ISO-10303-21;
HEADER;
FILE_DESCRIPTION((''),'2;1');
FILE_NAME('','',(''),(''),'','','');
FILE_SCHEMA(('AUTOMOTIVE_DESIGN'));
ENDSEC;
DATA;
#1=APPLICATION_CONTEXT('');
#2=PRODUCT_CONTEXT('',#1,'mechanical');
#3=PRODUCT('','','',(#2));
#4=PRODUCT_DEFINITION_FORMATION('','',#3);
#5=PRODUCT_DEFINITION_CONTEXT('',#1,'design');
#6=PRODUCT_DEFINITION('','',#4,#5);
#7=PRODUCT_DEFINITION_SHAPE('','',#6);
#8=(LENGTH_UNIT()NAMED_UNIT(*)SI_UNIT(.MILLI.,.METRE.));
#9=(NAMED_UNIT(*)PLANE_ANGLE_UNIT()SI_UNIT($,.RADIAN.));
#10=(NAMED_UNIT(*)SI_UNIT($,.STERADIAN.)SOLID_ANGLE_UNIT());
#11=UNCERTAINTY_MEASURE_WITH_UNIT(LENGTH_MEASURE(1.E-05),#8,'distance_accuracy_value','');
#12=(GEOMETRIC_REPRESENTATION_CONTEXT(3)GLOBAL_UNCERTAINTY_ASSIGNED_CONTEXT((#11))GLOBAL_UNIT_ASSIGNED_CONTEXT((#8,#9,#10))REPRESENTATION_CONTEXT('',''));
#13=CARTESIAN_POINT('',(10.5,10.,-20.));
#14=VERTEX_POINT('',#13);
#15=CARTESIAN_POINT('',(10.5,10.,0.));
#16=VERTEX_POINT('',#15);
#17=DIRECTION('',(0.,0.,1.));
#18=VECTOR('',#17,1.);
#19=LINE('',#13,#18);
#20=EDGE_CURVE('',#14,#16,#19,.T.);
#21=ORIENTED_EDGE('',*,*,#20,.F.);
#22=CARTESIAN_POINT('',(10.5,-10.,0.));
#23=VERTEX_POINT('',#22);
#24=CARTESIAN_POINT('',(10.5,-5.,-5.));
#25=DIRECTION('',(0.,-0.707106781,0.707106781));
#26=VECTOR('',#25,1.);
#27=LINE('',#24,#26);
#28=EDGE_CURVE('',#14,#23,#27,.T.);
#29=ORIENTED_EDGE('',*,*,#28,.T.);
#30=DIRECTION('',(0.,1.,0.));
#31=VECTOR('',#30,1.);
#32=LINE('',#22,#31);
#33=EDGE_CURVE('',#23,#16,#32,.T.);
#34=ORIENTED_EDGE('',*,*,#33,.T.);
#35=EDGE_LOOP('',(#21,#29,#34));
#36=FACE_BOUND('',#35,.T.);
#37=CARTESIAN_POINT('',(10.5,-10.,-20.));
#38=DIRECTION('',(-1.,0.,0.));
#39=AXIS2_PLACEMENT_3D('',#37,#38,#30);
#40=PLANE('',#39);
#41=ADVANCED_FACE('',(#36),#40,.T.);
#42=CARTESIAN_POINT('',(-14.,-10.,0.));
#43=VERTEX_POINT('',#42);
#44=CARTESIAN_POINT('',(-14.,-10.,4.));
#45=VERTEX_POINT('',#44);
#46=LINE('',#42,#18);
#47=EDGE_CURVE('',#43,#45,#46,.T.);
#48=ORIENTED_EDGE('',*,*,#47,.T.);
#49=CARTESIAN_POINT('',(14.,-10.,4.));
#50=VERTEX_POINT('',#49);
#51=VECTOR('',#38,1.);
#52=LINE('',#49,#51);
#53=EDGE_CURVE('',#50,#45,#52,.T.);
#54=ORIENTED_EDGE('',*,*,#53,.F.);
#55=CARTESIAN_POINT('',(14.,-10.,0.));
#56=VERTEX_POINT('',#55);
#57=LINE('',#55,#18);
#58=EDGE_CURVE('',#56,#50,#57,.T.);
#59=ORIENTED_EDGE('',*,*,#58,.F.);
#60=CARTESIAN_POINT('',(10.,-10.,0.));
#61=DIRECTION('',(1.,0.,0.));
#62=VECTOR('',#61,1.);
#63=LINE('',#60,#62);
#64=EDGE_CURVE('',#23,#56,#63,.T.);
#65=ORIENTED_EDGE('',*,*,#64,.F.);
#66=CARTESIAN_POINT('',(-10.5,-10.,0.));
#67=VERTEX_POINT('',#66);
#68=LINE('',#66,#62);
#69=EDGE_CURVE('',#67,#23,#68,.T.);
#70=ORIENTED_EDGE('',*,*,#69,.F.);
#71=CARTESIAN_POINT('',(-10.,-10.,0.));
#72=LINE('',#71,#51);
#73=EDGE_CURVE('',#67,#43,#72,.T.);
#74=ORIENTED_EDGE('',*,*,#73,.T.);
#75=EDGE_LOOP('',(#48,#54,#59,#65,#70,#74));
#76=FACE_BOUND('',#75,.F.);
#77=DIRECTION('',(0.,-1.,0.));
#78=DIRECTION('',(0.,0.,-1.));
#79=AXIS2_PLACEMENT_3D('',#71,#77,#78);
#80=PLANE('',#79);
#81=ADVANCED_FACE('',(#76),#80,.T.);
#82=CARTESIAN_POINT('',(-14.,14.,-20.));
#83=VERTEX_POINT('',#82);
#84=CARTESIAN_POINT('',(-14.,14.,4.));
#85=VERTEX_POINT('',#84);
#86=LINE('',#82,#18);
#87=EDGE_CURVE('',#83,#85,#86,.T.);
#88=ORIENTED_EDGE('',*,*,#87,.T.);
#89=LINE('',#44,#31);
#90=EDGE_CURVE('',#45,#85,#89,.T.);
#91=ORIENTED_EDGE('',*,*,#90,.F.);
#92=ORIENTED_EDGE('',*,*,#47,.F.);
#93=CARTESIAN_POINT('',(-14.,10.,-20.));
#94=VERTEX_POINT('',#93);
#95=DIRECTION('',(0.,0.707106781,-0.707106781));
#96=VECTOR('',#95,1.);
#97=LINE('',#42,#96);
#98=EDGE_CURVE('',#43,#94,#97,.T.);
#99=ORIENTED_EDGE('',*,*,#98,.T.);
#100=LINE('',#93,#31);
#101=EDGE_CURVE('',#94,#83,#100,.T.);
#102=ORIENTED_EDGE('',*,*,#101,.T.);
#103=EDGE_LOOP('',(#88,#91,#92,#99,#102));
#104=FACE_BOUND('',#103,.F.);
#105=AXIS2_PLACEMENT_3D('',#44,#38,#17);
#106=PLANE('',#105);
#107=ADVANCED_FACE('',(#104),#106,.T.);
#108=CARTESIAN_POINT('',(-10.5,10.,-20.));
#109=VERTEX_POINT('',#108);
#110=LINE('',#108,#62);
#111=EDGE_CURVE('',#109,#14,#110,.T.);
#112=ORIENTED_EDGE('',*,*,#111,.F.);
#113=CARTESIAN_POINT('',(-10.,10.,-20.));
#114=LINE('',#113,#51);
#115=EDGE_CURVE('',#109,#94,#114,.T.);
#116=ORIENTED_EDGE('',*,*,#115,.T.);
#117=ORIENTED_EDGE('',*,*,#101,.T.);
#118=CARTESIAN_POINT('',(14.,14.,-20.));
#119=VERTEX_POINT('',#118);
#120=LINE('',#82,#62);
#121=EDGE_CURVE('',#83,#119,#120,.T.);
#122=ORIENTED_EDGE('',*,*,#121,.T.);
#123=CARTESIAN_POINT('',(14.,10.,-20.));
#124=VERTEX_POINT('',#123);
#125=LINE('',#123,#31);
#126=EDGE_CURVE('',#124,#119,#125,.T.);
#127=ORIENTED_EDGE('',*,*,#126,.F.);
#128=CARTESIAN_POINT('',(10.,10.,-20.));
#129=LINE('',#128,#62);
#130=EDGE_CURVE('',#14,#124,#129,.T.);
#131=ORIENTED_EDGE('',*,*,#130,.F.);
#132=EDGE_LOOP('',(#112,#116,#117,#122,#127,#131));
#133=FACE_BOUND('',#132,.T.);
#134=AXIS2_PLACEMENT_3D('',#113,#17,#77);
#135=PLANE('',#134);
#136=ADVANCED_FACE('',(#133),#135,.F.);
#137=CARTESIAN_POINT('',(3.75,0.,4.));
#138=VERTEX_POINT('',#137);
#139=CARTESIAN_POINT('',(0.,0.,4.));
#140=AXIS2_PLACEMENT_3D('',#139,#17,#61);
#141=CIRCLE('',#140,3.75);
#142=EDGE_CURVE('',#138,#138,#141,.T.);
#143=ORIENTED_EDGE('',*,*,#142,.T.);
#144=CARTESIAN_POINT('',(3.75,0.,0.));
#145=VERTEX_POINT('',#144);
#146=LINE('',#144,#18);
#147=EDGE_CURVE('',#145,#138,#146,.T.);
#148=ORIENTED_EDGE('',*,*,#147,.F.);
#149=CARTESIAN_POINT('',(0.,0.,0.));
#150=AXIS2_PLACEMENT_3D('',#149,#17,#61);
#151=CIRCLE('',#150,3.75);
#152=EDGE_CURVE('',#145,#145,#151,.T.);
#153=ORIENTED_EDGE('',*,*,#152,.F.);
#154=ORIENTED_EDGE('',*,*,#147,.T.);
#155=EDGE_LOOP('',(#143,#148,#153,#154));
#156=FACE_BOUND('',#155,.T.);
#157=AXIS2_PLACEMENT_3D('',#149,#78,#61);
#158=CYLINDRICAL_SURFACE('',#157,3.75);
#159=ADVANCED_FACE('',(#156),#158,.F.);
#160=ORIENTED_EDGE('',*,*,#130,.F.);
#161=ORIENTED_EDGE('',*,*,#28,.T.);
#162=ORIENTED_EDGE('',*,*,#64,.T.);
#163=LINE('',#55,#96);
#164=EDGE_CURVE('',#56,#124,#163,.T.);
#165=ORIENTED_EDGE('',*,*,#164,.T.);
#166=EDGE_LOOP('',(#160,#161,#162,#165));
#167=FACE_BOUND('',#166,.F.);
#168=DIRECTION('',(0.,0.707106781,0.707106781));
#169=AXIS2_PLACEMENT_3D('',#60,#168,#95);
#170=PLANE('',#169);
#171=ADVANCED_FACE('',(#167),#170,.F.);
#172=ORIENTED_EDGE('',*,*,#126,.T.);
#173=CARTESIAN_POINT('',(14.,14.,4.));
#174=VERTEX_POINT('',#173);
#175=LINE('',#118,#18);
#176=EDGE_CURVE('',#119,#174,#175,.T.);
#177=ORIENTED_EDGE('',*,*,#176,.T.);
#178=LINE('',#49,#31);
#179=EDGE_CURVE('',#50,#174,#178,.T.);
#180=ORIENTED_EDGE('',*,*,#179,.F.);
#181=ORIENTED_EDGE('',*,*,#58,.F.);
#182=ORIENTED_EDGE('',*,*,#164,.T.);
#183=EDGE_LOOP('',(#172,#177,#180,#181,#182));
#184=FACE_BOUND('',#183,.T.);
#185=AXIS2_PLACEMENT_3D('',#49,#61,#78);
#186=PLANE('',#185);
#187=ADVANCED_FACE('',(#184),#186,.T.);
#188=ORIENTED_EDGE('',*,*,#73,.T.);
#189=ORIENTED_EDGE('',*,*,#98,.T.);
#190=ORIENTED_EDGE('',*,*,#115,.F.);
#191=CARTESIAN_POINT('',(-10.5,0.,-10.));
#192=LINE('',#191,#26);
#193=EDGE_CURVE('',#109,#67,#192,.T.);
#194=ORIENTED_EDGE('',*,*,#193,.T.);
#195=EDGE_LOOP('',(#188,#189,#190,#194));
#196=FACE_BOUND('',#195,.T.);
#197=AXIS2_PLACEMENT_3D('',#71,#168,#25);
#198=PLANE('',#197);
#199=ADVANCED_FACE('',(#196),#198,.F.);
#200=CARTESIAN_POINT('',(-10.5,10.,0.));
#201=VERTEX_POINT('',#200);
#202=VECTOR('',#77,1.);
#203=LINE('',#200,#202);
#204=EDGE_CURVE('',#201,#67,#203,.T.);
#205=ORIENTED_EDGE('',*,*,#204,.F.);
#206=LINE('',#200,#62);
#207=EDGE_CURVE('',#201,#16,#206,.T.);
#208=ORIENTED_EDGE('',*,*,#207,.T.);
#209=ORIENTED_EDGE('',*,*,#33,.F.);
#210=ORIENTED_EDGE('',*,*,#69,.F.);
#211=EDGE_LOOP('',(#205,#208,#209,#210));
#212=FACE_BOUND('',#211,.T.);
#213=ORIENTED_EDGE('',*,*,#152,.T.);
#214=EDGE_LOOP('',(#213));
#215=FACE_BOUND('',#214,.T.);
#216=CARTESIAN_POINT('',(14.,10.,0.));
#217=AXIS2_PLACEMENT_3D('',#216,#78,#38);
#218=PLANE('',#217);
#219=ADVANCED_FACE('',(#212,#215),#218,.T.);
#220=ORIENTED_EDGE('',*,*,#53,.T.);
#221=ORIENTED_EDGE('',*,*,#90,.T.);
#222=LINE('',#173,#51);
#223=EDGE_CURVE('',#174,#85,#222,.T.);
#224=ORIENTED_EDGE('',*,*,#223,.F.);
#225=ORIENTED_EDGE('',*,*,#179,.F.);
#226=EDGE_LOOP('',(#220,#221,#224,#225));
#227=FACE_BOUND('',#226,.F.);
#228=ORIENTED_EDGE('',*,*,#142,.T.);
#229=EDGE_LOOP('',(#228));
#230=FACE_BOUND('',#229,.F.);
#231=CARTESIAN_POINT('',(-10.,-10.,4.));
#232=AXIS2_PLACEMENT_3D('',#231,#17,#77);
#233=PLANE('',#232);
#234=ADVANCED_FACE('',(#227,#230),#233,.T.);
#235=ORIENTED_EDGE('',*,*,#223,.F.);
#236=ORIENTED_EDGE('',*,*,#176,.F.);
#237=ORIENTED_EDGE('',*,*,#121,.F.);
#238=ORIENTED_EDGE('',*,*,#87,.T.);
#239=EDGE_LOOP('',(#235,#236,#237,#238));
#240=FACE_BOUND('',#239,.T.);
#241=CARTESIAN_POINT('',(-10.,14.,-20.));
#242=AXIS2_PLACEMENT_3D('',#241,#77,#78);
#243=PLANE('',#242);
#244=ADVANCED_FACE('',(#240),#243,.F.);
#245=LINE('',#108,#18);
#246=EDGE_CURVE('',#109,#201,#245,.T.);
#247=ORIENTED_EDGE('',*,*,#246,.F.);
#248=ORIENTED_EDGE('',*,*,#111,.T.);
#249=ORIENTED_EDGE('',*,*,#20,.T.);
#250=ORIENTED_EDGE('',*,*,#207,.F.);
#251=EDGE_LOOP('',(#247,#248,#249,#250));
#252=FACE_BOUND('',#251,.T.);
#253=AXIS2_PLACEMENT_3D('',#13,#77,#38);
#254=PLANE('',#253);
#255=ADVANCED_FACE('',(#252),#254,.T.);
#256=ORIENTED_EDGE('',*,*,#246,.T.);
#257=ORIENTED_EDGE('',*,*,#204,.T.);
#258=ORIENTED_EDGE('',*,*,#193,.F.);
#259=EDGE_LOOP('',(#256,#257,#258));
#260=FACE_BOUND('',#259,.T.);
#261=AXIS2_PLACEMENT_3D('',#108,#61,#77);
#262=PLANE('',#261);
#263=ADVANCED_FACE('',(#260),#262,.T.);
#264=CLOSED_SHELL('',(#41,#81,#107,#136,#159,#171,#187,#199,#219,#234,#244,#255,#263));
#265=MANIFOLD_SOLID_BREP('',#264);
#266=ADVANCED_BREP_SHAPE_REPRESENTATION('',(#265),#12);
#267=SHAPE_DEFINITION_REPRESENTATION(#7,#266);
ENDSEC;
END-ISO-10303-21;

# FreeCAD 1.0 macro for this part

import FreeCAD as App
import Part
import Sketcher
from FreeCAD import Vector


def add_polygon(sketch, points):
    """Adds a closed chain of lines whose ends are joined by coincident constraints."""
    first, n = sketch.GeometryCount, len(points)
    for a, b in zip(points, points[1:] + points[:1]):
        sketch.addGeometry(Part.LineSegment(App.Vector(*a, 0), App.Vector(*b, 0)), False)
    for i in range(n):
        sketch.addConstraint(Sketcher.Constraint("Coincident", first + i, 2, first + (i + 1) % n, 1))

doc = App.newDocument("Part")
body = doc.addObject("PartDesign::Body", "Body")

sketch1 = doc.addObject("Sketcher::SketchObject", "Sketch")
body.addObject(sketch1)
sketch1.AttachmentSupport = (doc.XY_Plane, [""])
sketch1.MapMode = "FlatFace"
add_polygon(sketch1, [(10, 10), (-10, 10), (-10, -10), (10, -10)])
sketch1.addGeometry(Part.Circle(Vector(0, 0, 0), Vector(0, 0, 1), 3.8), False)
sketch1.addConstraint(Sketcher.Constraint("Horizontal", 0))
sketch1.addConstraint(Sketcher.Constraint("Vertical", 1))
sketch1.addConstraint(Sketcher.Constraint("Horizontal", 2))
sketch1.addConstraint(Sketcher.Constraint("Vertical", 3))
sketch1.addConstraint(Sketcher.Constraint("Coincident", 4, 3, -1, 1))
sketch1.addConstraint(Sketcher.Constraint("Symmetric", 0, 2, 2, 2, -1, 1))
sketch1.addConstraint(Sketcher.Constraint("Equal", 2, 1))
sketch1.addConstraint(Sketcher.Constraint("Diameter", 4, 7.5))
sketch1.addConstraint(Sketcher.Constraint("DistanceX", 0, 2, 0, 1, 20.0))
pad1 = doc.addObject("PartDesign::Pad", "Pad")
body.addObject(pad1)
pad1.Profile = sketch1
pad1.Length = 4

sketch2 = doc.addObject("Sketcher::SketchObject", "Sketch001")
body.addObject(sketch2)
sketch2.AttachmentSupport = (doc.XZ_Plane, [""])
sketch2.MapMode = "FlatFace"
sketch2.AttachmentOffset = App.Placement(Vector(0, 0, -10), App.Rotation())
add_polygon(sketch2, [(-10, 4), (10, 4), (10, -20), (-10, -20)])
sketch2.addConstraint(Sketcher.Constraint("Horizontal", 0))
sketch2.addConstraint(Sketcher.Constraint("Vertical", 1))
sketch2.addConstraint(Sketcher.Constraint("Horizontal", 2))
sketch2.addConstraint(Sketcher.Constraint("Vertical", 3))
sketch2.addConstraint(Sketcher.Constraint("DistanceY", 1, 2, 1, 1, 24.0))
sketch2.addConstraint(Sketcher.Constraint("DistanceX", 0, 1, 0, 2, 20.0))
sketch2.addConstraint(Sketcher.Constraint("DistanceX", -1, 1, 0, 2, 10.0))
sketch2.addConstraint(Sketcher.Constraint("DistanceY", -1, 1, 0, 2, 4.0))
pad2 = doc.addObject("PartDesign::Pad", "Pad001")
body.addObject(pad2)
pad2.Profile = sketch2
pad2.Length = 4
pad2.Reversed = True

sketch3 = doc.addObject("Sketcher::SketchObject", "Sketch002")
body.addObject(sketch3)
sketch3.AttachmentSupport = (doc.YZ_Plane, [""])
sketch3.MapMode = "FlatFace"
sketch3.AttachmentOffset = App.Placement(Vector(0, 0, 10), App.Rotation())
add_polygon(sketch3, [(-10, 4), (-10, 0), (10, -20), (14, -20), (14, 4)])
sketch3.addConstraint(Sketcher.Constraint("Vertical", 0))
sketch3.addConstraint(Sketcher.Constraint("Horizontal", 2))
sketch3.addConstraint(Sketcher.Constraint("Vertical", 3))
sketch3.addConstraint(Sketcher.Constraint("Horizontal", 4))
sketch3.addConstraint(Sketcher.Constraint("PointOnObject", 0, 2, -1))
sketch3.addConstraint(Sketcher.Constraint("Equal", 2, 0))
sketch3.addConstraint(Sketcher.Constraint("Equal", 4, 3))
sketch3.addConstraint(Sketcher.Constraint("DistanceX", 2, 1, 2, 2, 4.0))
sketch3.addConstraint(Sketcher.Constraint("DistanceX", 4, 2, 4, 1, 24.0))
sketch3.addConstraint(Sketcher.Constraint("DistanceX", 0, 2, -1, 1, 10.0))
pad3 = doc.addObject("PartDesign::Pad", "Pad002")
body.addObject(pad3)
pad3.Profile = sketch3
pad3.Length = 4
doc.recompute()

mirrored = doc.addObject("PartDesign::Mirrored", "Mirrored")
body.addObject(mirrored)
mirrored.Originals = [pad3]
mirrored.MirrorPlane = (doc.YZ_Plane, [""])
body.Tip = mirrored

sketch4 = doc.addObject("Sketcher::SketchObject", "Sketch003")
body.addObject(sketch4)
sketch4.AttachmentSupport = (doc.XY_Plane, [""])
sketch4.MapMode = "FlatFace"
sketch4.AttachmentOffset = App.Placement(Vector(0, 0, -20), App.Rotation())
add_polygon(sketch4, [(-10, 10), (10, 10), (10, -10), (-10, -10)])
sketch4.addConstraint(Sketcher.Constraint("Horizontal", 0))
sketch4.addConstraint(Sketcher.Constraint("Vertical", 1))
sketch4.addConstraint(Sketcher.Constraint("Horizontal", 2))
sketch4.addConstraint(Sketcher.Constraint("Vertical", 3))
sketch4.addConstraint(Sketcher.Constraint("Symmetric", 0, 2, 2, 2, -1, 1))
sketch4.addConstraint(Sketcher.Constraint("DistanceX", 0, 1, 0, 2, 21.0))
sketch4.addConstraint(Sketcher.Constraint("DistanceY", 1, 2, 1, 1, 20.0))
pocket1 = doc.addObject("PartDesign::Pocket", "Pocket")
body.addObject(pocket1)
pocket1.Profile = sketch4
pocket1.Length = 20
pocket1.Reversed = True

doc.recompute()
